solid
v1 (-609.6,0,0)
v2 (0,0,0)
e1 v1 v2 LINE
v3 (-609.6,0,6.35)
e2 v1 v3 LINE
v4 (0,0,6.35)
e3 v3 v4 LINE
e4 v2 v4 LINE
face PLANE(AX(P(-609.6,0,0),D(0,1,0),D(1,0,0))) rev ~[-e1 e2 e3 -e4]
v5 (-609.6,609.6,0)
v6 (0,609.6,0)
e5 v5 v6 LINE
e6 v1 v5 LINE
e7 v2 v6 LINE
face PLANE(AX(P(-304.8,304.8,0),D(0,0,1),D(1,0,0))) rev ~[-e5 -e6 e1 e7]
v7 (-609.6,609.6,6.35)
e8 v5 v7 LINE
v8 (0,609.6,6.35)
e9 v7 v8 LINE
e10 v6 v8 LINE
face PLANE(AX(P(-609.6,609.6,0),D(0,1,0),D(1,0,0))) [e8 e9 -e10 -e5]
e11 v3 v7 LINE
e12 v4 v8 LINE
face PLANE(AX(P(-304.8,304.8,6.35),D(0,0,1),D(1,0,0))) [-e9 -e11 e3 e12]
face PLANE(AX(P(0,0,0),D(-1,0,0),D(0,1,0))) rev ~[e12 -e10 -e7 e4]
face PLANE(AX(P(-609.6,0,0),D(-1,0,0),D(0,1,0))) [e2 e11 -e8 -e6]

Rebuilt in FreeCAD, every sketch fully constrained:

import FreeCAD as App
import Part
import Sketcher
Q = App.Units.Quantity

doc = App.newDocument("Part")
body = doc.addObject("PartDesign::Body", "Body")

# Sketch on XY plane
sketch1 = body.newObject("Sketcher::SketchObject", "Sketch")
sketch1.AttachmentSupport = (doc.getObject("XY_Plane"), [""])
sketch1.MapMode = "FlatFace"
sketch1.addGeometry([
    Part.LineSegment(App.Vector(-610, 610, 0), App.Vector(-610, 0, 0)),
    Part.LineSegment(App.Vector(-610, 0, 0), App.Vector(0, 0, 0)),
    Part.LineSegment(App.Vector(0, 0, 0), App.Vector(0, 610, 0)),
    Part.LineSegment(App.Vector(0, 610, 0), App.Vector(-610, 610, 0)),
], False)
sketch1.addConstraint([
    Sketcher.Constraint("Coincident", 0, 2, 1, 1),
    Sketcher.Constraint("Coincident", 1, 2, 2, 1),
    Sketcher.Constraint("Coincident", 2, 2, 3, 1),
    Sketcher.Constraint("Coincident", 3, 2, 0, 1),
    Sketcher.Constraint("Vertical", 0),
    Sketcher.Constraint("Horizontal", 1),
    Sketcher.Constraint("Vertical", 2),
    Sketcher.Constraint("Horizontal", 3),
    Sketcher.Constraint("Coincident", 1, 2, -1, 1),
    Sketcher.Constraint("Equal", 3, 0),
    Sketcher.Constraint("DistanceX", 1, 1, 1, 2, Q("24 in")),
])
pad1 = body.newObject("PartDesign::Pad", "Pad")
pad1.Profile = sketch1
pad1.Length = Q("0.25 in")

doc.recompute()
